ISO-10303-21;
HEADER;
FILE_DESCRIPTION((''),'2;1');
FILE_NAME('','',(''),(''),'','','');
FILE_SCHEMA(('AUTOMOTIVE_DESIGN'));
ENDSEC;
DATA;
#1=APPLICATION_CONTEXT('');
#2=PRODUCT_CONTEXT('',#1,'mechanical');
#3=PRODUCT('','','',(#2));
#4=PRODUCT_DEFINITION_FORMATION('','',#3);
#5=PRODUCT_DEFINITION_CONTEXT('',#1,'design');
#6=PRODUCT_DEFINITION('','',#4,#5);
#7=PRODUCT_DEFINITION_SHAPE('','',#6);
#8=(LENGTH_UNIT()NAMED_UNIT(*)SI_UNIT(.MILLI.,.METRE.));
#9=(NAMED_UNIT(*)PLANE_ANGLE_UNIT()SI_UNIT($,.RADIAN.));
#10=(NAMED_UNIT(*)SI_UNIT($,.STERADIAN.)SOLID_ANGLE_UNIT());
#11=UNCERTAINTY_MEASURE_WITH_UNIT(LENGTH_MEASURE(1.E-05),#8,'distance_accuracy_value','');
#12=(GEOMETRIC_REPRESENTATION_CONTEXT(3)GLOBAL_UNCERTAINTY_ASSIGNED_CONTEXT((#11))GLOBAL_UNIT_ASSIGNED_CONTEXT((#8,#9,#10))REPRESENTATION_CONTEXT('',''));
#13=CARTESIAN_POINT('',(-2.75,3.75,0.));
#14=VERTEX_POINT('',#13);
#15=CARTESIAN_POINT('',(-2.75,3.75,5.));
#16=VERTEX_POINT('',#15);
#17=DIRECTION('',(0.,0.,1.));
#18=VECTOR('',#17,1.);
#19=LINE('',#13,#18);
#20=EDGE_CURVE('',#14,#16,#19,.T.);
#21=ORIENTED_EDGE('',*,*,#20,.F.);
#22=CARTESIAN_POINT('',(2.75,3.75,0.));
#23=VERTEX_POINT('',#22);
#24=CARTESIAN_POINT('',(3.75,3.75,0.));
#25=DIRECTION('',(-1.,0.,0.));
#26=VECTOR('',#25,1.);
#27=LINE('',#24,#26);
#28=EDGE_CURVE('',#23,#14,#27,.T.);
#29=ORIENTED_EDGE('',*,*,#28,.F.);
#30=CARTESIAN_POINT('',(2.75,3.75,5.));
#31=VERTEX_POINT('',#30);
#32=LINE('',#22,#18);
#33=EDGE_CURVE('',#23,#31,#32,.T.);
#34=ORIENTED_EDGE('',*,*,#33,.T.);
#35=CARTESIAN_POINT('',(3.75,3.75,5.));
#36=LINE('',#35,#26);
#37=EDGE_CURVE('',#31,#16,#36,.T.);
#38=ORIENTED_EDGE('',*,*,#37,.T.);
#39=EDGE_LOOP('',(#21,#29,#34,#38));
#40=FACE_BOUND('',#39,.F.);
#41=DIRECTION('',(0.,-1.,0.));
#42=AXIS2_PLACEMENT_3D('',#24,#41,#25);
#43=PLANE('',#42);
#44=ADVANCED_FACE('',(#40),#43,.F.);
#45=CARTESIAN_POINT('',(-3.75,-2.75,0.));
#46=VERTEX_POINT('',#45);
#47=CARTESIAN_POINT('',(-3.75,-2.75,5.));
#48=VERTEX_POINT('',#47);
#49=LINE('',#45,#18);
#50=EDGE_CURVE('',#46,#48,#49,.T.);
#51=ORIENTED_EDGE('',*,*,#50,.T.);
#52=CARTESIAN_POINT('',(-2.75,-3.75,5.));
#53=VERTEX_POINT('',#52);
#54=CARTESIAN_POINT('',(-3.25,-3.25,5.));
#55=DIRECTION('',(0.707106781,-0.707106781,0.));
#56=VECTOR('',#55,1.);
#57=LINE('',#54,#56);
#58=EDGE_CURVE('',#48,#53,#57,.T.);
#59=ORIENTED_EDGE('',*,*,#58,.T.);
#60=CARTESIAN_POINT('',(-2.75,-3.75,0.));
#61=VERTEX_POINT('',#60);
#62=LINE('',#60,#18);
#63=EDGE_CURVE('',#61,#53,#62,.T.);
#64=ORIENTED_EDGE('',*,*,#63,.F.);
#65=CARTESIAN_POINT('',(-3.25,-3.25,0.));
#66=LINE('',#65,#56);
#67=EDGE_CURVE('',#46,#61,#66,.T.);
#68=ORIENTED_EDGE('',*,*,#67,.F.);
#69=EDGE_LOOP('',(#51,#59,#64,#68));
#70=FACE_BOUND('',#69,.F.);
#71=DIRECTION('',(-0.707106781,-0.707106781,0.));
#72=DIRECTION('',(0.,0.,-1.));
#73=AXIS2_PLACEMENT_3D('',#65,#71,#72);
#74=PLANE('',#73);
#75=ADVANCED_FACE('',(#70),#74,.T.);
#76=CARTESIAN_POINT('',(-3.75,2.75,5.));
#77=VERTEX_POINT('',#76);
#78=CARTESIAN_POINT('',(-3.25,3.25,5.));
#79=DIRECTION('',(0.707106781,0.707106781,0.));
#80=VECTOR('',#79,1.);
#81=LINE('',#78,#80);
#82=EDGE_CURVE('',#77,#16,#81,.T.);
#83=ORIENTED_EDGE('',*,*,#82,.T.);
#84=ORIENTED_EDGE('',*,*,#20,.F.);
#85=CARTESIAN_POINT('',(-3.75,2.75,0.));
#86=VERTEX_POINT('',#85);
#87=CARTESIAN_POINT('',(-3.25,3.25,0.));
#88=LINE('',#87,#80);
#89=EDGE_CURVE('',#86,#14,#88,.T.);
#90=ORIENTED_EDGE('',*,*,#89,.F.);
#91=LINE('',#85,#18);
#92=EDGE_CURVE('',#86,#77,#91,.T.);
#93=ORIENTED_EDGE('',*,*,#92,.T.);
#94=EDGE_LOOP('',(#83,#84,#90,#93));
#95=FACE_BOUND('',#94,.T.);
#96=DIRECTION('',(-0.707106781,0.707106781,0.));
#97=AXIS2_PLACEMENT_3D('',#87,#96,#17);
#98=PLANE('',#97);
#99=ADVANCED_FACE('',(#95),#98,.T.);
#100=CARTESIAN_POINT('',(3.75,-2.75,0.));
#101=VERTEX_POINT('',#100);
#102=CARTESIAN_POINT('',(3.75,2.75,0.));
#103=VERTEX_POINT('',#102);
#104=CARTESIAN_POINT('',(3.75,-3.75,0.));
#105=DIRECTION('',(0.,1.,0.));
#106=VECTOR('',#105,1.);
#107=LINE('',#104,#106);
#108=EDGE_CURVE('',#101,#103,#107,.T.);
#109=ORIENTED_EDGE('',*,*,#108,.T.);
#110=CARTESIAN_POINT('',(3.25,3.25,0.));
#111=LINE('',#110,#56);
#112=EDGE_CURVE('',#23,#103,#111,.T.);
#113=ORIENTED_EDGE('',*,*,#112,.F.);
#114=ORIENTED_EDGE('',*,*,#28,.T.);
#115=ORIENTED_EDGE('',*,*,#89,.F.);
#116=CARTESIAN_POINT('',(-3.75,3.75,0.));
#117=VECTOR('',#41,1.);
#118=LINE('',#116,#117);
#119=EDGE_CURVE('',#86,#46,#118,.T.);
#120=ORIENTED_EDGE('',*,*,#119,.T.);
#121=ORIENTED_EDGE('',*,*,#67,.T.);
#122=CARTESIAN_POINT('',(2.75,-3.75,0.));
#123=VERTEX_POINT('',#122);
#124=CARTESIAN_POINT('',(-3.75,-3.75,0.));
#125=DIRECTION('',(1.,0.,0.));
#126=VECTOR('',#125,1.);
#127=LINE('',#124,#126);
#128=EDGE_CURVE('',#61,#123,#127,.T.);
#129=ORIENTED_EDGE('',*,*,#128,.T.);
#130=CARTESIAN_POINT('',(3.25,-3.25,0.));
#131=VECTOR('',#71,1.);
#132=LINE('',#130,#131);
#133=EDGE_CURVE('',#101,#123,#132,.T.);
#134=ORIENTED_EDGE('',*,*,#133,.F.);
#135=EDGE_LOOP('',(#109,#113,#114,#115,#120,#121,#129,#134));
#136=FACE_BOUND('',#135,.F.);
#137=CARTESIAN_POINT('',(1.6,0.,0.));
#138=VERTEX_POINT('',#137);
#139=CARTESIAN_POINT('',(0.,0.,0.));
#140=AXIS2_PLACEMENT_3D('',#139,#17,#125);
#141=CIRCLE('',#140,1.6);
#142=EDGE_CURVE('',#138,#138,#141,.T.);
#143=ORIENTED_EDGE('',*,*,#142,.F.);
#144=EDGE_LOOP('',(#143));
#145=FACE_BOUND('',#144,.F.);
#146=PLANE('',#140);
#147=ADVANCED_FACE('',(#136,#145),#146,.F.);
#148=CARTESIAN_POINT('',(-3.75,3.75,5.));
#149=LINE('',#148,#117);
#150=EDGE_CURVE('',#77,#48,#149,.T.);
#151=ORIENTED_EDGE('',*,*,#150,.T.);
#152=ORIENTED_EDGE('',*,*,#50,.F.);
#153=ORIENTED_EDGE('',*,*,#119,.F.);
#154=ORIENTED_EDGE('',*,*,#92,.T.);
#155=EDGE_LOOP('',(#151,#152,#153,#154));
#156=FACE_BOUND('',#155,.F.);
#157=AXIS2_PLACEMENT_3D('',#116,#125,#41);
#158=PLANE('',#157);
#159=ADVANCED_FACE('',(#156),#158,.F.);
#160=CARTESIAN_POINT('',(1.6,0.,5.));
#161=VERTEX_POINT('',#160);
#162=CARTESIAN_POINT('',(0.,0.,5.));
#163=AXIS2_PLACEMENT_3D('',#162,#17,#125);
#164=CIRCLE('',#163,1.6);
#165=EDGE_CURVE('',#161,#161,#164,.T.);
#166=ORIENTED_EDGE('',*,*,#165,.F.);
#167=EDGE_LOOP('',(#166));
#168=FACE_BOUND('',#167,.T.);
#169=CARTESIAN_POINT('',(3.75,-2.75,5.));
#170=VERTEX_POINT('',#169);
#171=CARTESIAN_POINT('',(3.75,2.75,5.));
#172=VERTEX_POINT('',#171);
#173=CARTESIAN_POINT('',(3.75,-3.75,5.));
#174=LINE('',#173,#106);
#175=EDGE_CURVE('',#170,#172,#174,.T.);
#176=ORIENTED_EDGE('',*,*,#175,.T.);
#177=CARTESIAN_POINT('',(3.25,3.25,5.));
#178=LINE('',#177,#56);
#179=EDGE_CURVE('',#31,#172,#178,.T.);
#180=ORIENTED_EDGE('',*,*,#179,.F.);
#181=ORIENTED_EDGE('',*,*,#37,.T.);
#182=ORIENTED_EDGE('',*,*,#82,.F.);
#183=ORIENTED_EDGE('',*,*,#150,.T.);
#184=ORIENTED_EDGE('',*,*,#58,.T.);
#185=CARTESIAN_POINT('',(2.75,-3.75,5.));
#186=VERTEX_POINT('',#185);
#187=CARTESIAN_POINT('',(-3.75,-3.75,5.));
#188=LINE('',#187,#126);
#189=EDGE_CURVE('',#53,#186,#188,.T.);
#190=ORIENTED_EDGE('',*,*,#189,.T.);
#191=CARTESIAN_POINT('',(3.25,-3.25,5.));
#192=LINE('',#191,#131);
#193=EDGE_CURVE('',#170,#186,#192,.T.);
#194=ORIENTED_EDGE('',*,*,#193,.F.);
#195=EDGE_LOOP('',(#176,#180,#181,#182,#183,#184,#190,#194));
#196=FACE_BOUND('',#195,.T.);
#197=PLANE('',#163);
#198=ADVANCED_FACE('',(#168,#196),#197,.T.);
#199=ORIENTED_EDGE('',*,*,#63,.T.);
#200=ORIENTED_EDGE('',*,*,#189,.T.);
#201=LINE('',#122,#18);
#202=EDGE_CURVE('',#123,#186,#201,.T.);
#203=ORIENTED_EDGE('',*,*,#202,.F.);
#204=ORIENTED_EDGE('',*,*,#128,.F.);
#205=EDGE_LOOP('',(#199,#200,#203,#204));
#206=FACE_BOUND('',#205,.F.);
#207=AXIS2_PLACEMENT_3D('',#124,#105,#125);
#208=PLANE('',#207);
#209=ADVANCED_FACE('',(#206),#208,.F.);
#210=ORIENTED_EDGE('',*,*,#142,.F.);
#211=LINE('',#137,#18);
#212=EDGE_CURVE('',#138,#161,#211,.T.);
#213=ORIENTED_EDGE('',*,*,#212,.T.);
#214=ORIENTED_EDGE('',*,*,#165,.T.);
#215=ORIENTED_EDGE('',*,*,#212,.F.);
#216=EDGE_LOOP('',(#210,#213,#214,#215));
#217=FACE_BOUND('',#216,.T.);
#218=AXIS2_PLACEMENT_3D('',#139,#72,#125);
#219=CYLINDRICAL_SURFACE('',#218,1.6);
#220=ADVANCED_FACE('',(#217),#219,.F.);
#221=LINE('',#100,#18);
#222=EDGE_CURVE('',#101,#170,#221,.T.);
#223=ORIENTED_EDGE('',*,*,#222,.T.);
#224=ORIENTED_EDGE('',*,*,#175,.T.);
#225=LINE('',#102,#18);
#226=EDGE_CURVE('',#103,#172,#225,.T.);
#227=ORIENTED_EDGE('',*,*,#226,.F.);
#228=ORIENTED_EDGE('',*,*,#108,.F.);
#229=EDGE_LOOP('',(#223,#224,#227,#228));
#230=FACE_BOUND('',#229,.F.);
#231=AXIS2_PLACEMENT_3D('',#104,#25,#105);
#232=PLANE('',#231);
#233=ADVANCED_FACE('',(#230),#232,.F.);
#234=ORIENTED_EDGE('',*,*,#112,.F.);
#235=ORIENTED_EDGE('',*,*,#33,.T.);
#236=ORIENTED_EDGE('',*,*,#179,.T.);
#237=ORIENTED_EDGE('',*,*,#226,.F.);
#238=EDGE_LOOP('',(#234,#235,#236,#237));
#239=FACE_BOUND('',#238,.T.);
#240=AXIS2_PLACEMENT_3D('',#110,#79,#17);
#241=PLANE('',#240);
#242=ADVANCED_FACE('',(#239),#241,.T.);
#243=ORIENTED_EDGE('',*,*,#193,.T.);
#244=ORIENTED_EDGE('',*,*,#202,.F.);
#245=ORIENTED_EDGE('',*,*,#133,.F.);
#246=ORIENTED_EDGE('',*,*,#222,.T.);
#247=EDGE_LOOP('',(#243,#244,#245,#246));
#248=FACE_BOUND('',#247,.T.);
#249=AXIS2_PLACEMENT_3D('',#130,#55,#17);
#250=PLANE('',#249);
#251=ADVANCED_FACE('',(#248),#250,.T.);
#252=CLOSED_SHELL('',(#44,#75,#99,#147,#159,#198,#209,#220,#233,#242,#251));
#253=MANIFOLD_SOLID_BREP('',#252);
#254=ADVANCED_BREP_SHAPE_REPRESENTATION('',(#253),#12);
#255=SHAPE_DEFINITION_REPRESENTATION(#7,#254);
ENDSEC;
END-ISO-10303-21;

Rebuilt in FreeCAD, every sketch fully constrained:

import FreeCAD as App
import Part
import Sketcher

V = App.Vector
Q = App.Units.Quantity


def edges_at(feature, points):
    """Names of the edges that pass closest to the given points."""
    edges = feature.Shape.Edges
    near = lambda p: min(range(len(edges)), key=lambda i: edges[i].distToShape(Part.Vertex(*p))[0])
    return sorted({f"Edge{near(p) + 1}" for p in points})


def add_polygon(sketch, points):
    """Adds a closed chain of lines whose ends are joined by coincident constraints."""
    first, n = sketch.GeometryCount, len(points)
    for a, b in zip(points, points[1:] + points[:1]):
        sketch.addGeometry(Part.LineSegment(App.Vector(*a, 0), App.Vector(*b, 0)), False)
    for i in range(n):
        sketch.addConstraint(Sketcher.Constraint("Coincident", first + i, 2, first + (i + 1) % n, 1))

doc = App.newDocument("Part")
body = doc.addObject("PartDesign::Body", "Body")

# Sketch on XY plane
sketch1 = body.newObject("Sketcher::SketchObject", "Sketch")
sketch1.AttachmentSupport = (doc.getObject("XY_Plane"), [""])
sketch1.MapMode = "FlatFace"
add_polygon(sketch1, [(-3.8, 3.8), (-3.8, -3.8), (3.8, -3.8), (3.8, 3.8)])  # lines 0-3
sketch1.addGeometry(Part.Circle(V(0, 0, 0), V(0, 0, 1), 1.6), False)  # 4
sketch1.addConstraint([
    Sketcher.Constraint("Vertical", 0),
    Sketcher.Constraint("Horizontal", 1),
    Sketcher.Constraint("Vertical", 2),
    Sketcher.Constraint("Horizontal", 3),
    Sketcher.Constraint("Coincident", 4, 3, -1, 1),
    Sketcher.Constraint("Symmetric", 0, 2, 2, 2, -1, 1),
    Sketcher.Constraint("Equal", 3, 0),
    Sketcher.Constraint("Diameter", 4, Q("3.2 mm")),
    Sketcher.Constraint("DistanceX", 1, 1, 1, 2, Q("7.5 mm")),
])
pad1 = body.newObject("PartDesign::Pad", "Pad")
pad1.Profile = sketch1
pad1.Length = 5
doc.recompute()

chamfer = body.newObject("PartDesign::Chamfer", "Chamfer")
chamfer.Base = (pad1, edges_at(pad1, [
    (3.75, -3.75, 2.5),
    (-3.75, -3.75, 2.5),
    (-3.75, 3.75, 2.5),
    (3.75, 3.75, 2.5),
]))
chamfer.Size = 1

doc.recompute()
